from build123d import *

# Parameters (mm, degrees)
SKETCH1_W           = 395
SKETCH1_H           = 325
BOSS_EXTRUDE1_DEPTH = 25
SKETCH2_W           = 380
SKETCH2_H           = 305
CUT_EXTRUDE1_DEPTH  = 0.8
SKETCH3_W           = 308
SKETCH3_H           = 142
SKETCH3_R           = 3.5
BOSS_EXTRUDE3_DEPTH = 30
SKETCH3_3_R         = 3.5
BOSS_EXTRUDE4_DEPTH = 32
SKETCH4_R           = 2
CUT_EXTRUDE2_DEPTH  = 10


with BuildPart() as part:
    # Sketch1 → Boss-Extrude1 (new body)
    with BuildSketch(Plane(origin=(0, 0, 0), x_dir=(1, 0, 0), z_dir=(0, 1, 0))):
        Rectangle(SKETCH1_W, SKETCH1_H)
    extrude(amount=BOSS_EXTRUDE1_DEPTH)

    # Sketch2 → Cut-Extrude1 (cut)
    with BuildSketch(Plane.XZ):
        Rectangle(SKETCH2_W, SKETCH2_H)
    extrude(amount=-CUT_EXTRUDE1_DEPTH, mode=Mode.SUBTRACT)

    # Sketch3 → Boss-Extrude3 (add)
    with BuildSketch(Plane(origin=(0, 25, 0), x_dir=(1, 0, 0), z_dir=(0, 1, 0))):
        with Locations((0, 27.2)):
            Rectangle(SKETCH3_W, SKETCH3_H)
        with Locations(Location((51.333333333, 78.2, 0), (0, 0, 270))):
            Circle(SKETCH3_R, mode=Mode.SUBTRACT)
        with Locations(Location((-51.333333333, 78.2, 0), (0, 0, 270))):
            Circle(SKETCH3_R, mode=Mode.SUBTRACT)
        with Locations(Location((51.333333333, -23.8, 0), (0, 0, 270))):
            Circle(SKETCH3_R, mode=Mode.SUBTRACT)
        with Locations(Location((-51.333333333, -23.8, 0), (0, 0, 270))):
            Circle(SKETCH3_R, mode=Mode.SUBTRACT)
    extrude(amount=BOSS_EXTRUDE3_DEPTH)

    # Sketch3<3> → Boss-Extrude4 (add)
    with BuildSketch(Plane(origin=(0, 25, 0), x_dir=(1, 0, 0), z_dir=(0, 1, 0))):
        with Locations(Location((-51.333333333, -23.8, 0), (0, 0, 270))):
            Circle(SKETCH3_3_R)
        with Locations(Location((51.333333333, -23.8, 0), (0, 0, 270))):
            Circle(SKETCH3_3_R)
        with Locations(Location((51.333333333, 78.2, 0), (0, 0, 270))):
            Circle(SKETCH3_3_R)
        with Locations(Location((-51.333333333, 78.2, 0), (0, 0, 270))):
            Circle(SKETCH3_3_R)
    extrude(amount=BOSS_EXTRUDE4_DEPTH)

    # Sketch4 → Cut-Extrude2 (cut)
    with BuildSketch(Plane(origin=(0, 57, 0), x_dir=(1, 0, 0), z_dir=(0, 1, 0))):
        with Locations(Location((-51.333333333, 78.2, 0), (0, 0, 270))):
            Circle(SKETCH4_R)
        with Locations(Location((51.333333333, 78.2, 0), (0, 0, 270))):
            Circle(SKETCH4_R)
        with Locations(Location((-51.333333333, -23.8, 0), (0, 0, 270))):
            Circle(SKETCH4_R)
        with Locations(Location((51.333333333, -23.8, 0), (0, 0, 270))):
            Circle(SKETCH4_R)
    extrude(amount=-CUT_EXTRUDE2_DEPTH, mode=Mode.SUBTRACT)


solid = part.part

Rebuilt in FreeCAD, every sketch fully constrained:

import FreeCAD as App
import Part
import Sketcher
from FreeCAD import Vector
Q = App.Units.Quantity


def add_polygon(sketch, points):
    """Adds a closed chain of lines whose ends are joined by coincident constraints."""
    first, n = sketch.GeometryCount, len(points)
    for a, b in zip(points, points[1:] + points[:1]):
        sketch.addGeometry(Part.LineSegment(App.Vector(*a, 0), App.Vector(*b, 0)), False)
    for i in range(n):
        sketch.addConstraint(Sketcher.Constraint("Coincident", first + i, 2, first + (i + 1) % n, 1))

doc = App.newDocument("Part")
body = doc.addObject("PartDesign::Body", "Body")

sketch1 = doc.addObject("Sketcher::SketchObject", "Sketch")
body.addObject(sketch1)
sketch1.AttachmentSupport = (doc.XZ_Plane, [""])
sketch1.MapMode = "FlatFace"
add_polygon(sketch1, [(-198, -162), (-198, 162), (198, 162), (198, -162)])
sketch1.addConstraint([
    Sketcher.Constraint("Vertical", 0),
    Sketcher.Constraint("Horizontal", 1),
    Sketcher.Constraint("Vertical", 2),
    Sketcher.Constraint("Horizontal", 3),
    Sketcher.Constraint("Symmetric", 0, 2, 2, 2, -1, 1),
    Sketcher.Constraint("DistanceX", 1, 1, 1, 2, Q("395 mm")),
    Sketcher.Constraint("DistanceY", 0, 1, 0, 2, Q("325 mm")),
])
pad1 = doc.addObject("PartDesign::Pad", "Pad")
body.addObject(pad1)
pad1.Profile = sketch1
pad1.Length = 25
pad1.Reversed = True

sketch2 = doc.addObject("Sketcher::SketchObject", "Sketch001")
body.addObject(sketch2)
sketch2.AttachmentSupport = (doc.XZ_Plane, [""])
sketch2.MapMode = "FlatFace"
add_polygon(sketch2, [(-190, 152), (-190, -152), (190, -152), (190, 152)])
sketch2.addConstraint([
    Sketcher.Constraint("Vertical", 0),
    Sketcher.Constraint("Horizontal", 1),
    Sketcher.Constraint("Vertical", 2),
    Sketcher.Constraint("Horizontal", 3),
    Sketcher.Constraint("Symmetric", 0, 2, 2, 2, -1, 1),
    Sketcher.Constraint("DistanceX", 1, 1, 1, 2, Q("380 mm")),
    Sketcher.Constraint("DistanceY", 0, 2, 0, 1, Q("305 mm")),
])
pocket1 = doc.addObject("PartDesign::Pocket", "Pocket")
body.addObject(pocket1)
pocket1.Profile = sketch2
pocket1.Length = 0.8

sketch3 = doc.addObject("Sketcher::SketchObject", "Sketch002")
body.addObject(sketch3)
sketch3.AttachmentSupport = (doc.XZ_Plane, [""])
sketch3.MapMode = "FlatFace"
sketch3.AttachmentOffset = App.Placement(Vector(0, 0, -25), App.Rotation())
add_polygon(sketch3, [(-154, -98.2), (-154, 43.8), (154, 43.8), (154, -98.2)])
sketch3.addGeometry(Part.Circle(Vector(-51.3, 23.8, 0), Vector(0, 0, 1), 3.5), False)
sketch3.addGeometry(Part.Circle(Vector(51.3, 23.8, 0), Vector(0, 0, 1), 3.5), False)
sketch3.addGeometry(Part.Circle(Vector(-51.3, -78.2, 0), Vector(0, 0, 1), 3.5), False)
sketch3.addGeometry(Part.Circle(Vector(51.3, -78.2, 0), Vector(0, 0, 1), 3.5), False)
sketch3.addConstraint([
    Sketcher.Constraint("Vertical", 0),
    Sketcher.Constraint("Horizontal", 1),
    Sketcher.Constraint("Vertical", 2),
    Sketcher.Constraint("Horizontal", 3),
    Sketcher.Constraint("Equal", 4, 5),
    Sketcher.Constraint("Equal", 5, 6),
    Sketcher.Constraint("Equal", 6, 7),
    Sketcher.Constraint("Symmetric", 4, 3, 5, 3, -2),
    Sketcher.Constraint("Symmetric", 6, 3, 7, 3, -2),
    Sketcher.Constraint("Vertical", 4, 3, 6, 3),
    Sketcher.Constraint("Diameter", 4, Q("7 mm")),
    Sketcher.Constraint("DistanceX", 1, 1, 1, 2, Q("308 mm")),
    Sketcher.Constraint("DistanceY", 0, 1, 0, 2, Q("142 mm")),
    Sketcher.Constraint("DistanceX", 0, 2, -1, 1, Q("154 mm")),
    Sketcher.Constraint("DistanceY", 6, 3, 4, 3, Q("102 mm")),
    Sketcher.Constraint("DistanceY", 4, 3, 0, 2, Q("20 mm")),
    Sketcher.Constraint("DistanceY", -1, 1, 4, 3, Q("23.8 mm")),
    Sketcher.Constraint("DistanceX", 4, 3, -1, 1, Q("51.333333 mm")),
])
pad2 = doc.addObject("PartDesign::Pad", "Pad001")
body.addObject(pad2)
pad2.Profile = sketch3
pad2.Length = 30
pad2.Reversed = True

sketch4 = doc.addObject("Sketcher::SketchObject", "Sketch003")
body.addObject(sketch4)
sketch4.AttachmentSupport = (doc.XZ_Plane, [""])
sketch4.MapMode = "FlatFace"
sketch4.AttachmentOffset = App.Placement(Vector(0, 0, -25), App.Rotation())
sketch4.addGeometry([
    Part.Circle(Vector(-51.3, 23.8, 0), Vector(0, 0, 1), 3.5),
    Part.Circle(Vector(51.3, 23.8, 0), Vector(0, 0, 1), 3.5),
    Part.Circle(Vector(51.3, -78.2, 0), Vector(0, 0, 1), 3.5),
    Part.Circle(Vector(-51.3, -78.2, 0), Vector(0, 0, 1), 3.5),
], False)
sketch4.addConstraint([
    Sketcher.Constraint("Equal", 0, 1),
    Sketcher.Constraint("Equal", 1, 2),
    Sketcher.Constraint("Equal", 2, 3),
    Sketcher.Constraint("Symmetric", 0, 3, 1, 3, -2),
    Sketcher.Constraint("Symmetric", 2, 3, 3, 3, -2),
    Sketcher.Constraint("Vertical", 1, 3, 2, 3),
    Sketcher.Constraint("Diameter", 0, Q("7 mm")),
    Sketcher.Constraint("DistanceY", 2, 3, 1, 3, Q("102 mm")),
    Sketcher.Constraint("DistanceY", -1, 1, 0, 3, Q("23.8 mm")),
    Sketcher.Constraint("DistanceX", 0, 3, -1, 1, Q("51.333333 mm")),
])
pad3 = doc.addObject("PartDesign::Pad", "Pad002")
body.addObject(pad3)
pad3.Profile = sketch4
pad3.Length = 32
pad3.Reversed = True

sketch5 = doc.addObject("Sketcher::SketchObject", "Sketch004")
body.addObject(sketch5)
sketch5.AttachmentSupport = (doc.XZ_Plane, [""])
sketch5.MapMode = "FlatFace"
sketch5.AttachmentOffset = App.Placement(Vector(0, 0, -57), App.Rotation())
sketch5.addGeometry([
    Part.Circle(Vector(-51.3, -78.2, 0), Vector(0, 0, 1), 2),
    Part.Circle(Vector(51.3, -78.2, 0), Vector(0, 0, 1), 2),
    Part.Circle(Vector(-51.3, 23.8, 0), Vector(0, 0, 1), 2),
    Part.Circle(Vector(51.3, 23.8, 0), Vector(0, 0, 1), 2),
], False)
sketch5.addConstraint([
    Sketcher.Constraint("Equal", 0, 1),
    Sketcher.Constraint("Equal", 1, 2),
    Sketcher.Constraint("Equal", 2, 3),
    Sketcher.Constraint("Symmetric", 0, 3, 1, 3, -2),
    Sketcher.Constraint("Symmetric", 2, 3, 3, 3, -2),
    Sketcher.Constraint("Vertical", 0, 3, 2, 3),
    Sketcher.Constraint("Diameter", 0, Q("4 mm")),
    Sketcher.Constraint("DistanceY", 0, 3, 2, 3, Q("102 mm")),
    Sketcher.Constraint("DistanceY", 0, 3, -1, 1, Q("78.2 mm")),
    Sketcher.Constraint("DistanceX", 0, 3, -1, 1, Q("51.333333 mm")),
])
pocket2 = doc.addObject("PartDesign::Pocket", "Pocket001")
body.addObject(pocket2)
pocket2.Profile = sketch5
pocket2.Length = 10
pocket2.Reversed = True

doc.recompute()
